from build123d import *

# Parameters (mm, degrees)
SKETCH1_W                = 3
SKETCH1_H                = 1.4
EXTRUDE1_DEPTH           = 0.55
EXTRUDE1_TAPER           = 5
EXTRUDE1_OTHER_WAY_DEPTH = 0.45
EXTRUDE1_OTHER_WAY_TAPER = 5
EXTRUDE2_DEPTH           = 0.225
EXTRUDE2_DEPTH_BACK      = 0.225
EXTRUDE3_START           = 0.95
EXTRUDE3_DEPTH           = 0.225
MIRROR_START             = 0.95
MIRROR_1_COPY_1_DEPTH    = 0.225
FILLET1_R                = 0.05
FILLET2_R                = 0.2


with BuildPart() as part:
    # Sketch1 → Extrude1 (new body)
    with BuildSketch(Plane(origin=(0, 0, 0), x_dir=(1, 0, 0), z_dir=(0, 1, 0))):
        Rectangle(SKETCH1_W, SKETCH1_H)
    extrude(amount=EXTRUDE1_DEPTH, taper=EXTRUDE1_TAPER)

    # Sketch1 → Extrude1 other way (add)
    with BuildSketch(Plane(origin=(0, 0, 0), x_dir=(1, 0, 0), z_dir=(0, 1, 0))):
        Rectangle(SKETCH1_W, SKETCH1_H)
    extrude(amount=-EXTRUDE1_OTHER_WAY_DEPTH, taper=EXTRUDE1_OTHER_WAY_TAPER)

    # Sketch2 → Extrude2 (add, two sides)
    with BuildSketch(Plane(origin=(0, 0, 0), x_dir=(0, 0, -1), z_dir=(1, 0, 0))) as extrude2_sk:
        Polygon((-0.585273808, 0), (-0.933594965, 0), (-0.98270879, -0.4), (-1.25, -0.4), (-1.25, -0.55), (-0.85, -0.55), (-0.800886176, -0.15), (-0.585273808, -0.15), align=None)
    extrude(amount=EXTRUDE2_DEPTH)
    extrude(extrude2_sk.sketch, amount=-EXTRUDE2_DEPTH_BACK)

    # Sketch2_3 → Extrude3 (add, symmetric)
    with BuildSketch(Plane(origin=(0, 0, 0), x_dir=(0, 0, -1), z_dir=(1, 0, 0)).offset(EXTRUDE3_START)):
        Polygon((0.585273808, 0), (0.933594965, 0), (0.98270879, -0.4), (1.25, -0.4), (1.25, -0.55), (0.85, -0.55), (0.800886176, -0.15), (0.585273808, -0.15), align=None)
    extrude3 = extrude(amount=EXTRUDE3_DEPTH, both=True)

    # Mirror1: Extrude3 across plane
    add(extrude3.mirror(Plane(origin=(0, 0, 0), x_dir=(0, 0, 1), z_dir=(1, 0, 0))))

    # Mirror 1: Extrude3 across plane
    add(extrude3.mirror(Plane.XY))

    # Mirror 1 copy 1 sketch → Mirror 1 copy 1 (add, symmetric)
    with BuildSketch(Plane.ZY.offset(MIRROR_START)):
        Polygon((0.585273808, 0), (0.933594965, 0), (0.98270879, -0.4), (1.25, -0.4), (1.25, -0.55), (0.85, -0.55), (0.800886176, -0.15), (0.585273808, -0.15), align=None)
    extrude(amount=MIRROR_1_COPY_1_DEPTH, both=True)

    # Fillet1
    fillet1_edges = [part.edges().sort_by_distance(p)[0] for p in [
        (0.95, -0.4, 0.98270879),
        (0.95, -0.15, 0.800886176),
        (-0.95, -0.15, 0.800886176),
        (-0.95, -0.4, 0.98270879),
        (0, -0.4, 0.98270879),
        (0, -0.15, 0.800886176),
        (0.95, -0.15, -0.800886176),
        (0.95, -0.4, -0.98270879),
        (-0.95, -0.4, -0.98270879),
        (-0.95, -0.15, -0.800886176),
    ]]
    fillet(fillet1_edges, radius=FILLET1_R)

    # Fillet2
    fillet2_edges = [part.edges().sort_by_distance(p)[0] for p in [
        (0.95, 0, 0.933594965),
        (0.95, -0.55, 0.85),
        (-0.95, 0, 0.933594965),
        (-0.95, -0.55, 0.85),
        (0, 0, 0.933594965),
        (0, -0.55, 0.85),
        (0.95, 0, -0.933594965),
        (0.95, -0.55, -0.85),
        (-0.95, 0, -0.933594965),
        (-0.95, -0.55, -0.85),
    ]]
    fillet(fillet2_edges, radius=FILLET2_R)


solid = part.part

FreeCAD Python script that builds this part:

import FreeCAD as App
import Part
import Sketcher
Q = App.Units.Quantity


def edges_at(feature, points):
    """Names of the edges that pass closest to the given points."""
    edges = feature.Shape.Edges
    near = lambda p: min(range(len(edges)), key=lambda i: edges[i].distToShape(Part.Vertex(*p))[0])
    return sorted({f"Edge{near(p) + 1}" for p in points})

doc = App.newDocument("Part")
body = doc.addObject("PartDesign::Body", "Body")

sketch1 = doc.addObject("Sketcher::SketchObject", "Sketch")
body.addObject(sketch1)
sketch1.AttachmentSupport = (doc.XZ_Plane, [""])
sketch1.MapMode = "FlatFace"
sketch1.addGeometry([
    Part.LineSegment(App.Vector(-1.5, -0.7, 0), App.Vector(-1.5, 0.7, 0)),
    Part.LineSegment(App.Vector(-1.5, 0.7, 0), App.Vector(1.5, 0.7, 0)),
    Part.LineSegment(App.Vector(1.5, 0.7, 0), App.Vector(1.5, -0.7, 0)),
    Part.LineSegment(App.Vector(1.5, -0.7, 0), App.Vector(-1.5, -0.7, 0)),
], False)
sketch1.addConstraint([
    Sketcher.Constraint("Coincident", 0, 2, 1, 1),
    Sketcher.Constraint("Coincident", 1, 2, 2, 1),
    Sketcher.Constraint("Coincident", 2, 2, 3, 1),
    Sketcher.Constraint("Coincident", 3, 2, 0, 1),
    Sketcher.Constraint("Vertical", 0),
    Sketcher.Constraint("Horizontal", 1),
    Sketcher.Constraint("Vertical", 2),
    Sketcher.Constraint("Horizontal", 3),
    Sketcher.Constraint("Symmetric", 0, 2, 2, 2, -1, 1),
    Sketcher.Constraint("DistanceX", 1, 1, 1, 2, Q("3 mm")),
    Sketcher.Constraint("DistanceY", 0, 1, 0, 2, Q("1.4 mm")),
])
pad1 = doc.addObject("PartDesign::Pad", "Pad")
body.addObject(pad1)
pad1.Profile = sketch1
pad1.Length = 0.55
pad1.Reversed = True
pad1.TaperAngle = -5

sketch2 = doc.addObject("Sketcher::SketchObject", "Sketch001")
body.addObject(sketch2)
sketch2.AttachmentSupport = (doc.XZ_Plane, [""])
sketch2.MapMode = "FlatFace"
sketch2.addGeometry([
    Part.LineSegment(App.Vector(-1.5, -0.7, 0), App.Vector(-1.5, 0.7, 0)),
    Part.LineSegment(App.Vector(-1.5, 0.7, 0), App.Vector(1.5, 0.7, 0)),
    Part.LineSegment(App.Vector(1.5, 0.7, 0), App.Vector(1.5, -0.7, 0)),
    Part.LineSegment(App.Vector(1.5, -0.7, 0), App.Vector(-1.5, -0.7, 0)),
], False)
sketch2.addConstraint([
    Sketcher.Constraint("Coincident", 0, 2, 1, 1),
    Sketcher.Constraint("Coincident", 1, 2, 2, 1),
    Sketcher.Constraint("Coincident", 2, 2, 3, 1),
    Sketcher.Constraint("Coincident", 3, 2, 0, 1),
    Sketcher.Constraint("Vertical", 0),
    Sketcher.Constraint("Horizontal", 1),
    Sketcher.Constraint("Vertical", 2),
    Sketcher.Constraint("Horizontal", 3),
    Sketcher.Constraint("Symmetric", 0, 2, 2, 2, -1, 1),
    Sketcher.Constraint("DistanceX", 1, 1, 1, 2, Q("3 mm")),
    Sketcher.Constraint("DistanceY", 0, 1, 0, 2, Q("1.4 mm")),
])
pad2 = doc.addObject("PartDesign::Pad", "Pad001")
body.addObject(pad2)
pad2.Profile = sketch2
pad2.Length = 0.45
pad2.TaperAngle = -5

sketch3 = doc.addObject("Sketcher::SketchObject", "Sketch002")
body.addObject(sketch3)
sketch3.AttachmentSupport = (doc.YZ_Plane, [""])
sketch3.MapMode = "FlatFace"
sketch3.addGeometry([
    Part.LineSegment(App.Vector(0, 0.59, 0), App.Vector(0, 0.93, 0)),
    Part.LineSegment(App.Vector(0, 0.93, 0), App.Vector(-0.4, 0.98, 0)),
    Part.LineSegment(App.Vector(-0.4, 0.98, 0), App.Vector(-0.4, 1.25, 0)),
    Part.LineSegment(App.Vector(-0.4, 1.25, 0), App.Vector(-0.55, 1.25, 0)),
    Part.LineSegment(App.Vector(-0.55, 1.25, 0), App.Vector(-0.55, 0.85, 0)),
    Part.LineSegment(App.Vector(-0.55, 0.85, 0), App.Vector(-0.15, 0.8, 0)),
    Part.LineSegment(App.Vector(-0.15, 0.8, 0), App.Vector(-0.15, 0.59, 0)),
    Part.LineSegment(App.Vector(-0.15, 0.59, 0), App.Vector(0, 0.59, 0)),
], False)
sketch3.addConstraint([
    Sketcher.Constraint("Coincident", 0, 2, 1, 1),
    Sketcher.Constraint("Coincident", 1, 2, 2, 1),
    Sketcher.Constraint("Coincident", 2, 2, 3, 1),
    Sketcher.Constraint("Coincident", 3, 2, 4, 1),
    Sketcher.Constraint("Coincident", 4, 2, 5, 1),
    Sketcher.Constraint("Coincident", 5, 2, 6, 1),
    Sketcher.Constraint("Coincident", 6, 2, 7, 1),
    Sketcher.Constraint("Coincident", 7, 2, 0, 1),
    Sketcher.Constraint("Vertical", 0),
    Sketcher.Constraint("Vertical", 2),
    Sketcher.Constraint("Horizontal", 3),
    Sketcher.Constraint("Vertical", 4),
    Sketcher.Constraint("Vertical", 6),
    Sketcher.Constraint("Horizontal", 7),
    Sketcher.Constraint("PointOnObject", 0, 2, -2),
    Sketcher.Constraint("Parallel", 1, 5),
    Sketcher.Constraint("Equal", 3, 7),
    Sketcher.Constraint("Angle", 1, Q("173 deg")),
    Sketcher.Constraint("DistanceY", 4, 2, 4, 1, Q("0.4 mm")),
    Sketcher.Constraint("DistanceX", 3, 2, 3, 1, Q("0.15 mm")),
    Sketcher.Constraint("DistanceX", 1, 2, -1, 1, Q("0.4 mm")),
    Sketcher.Constraint("DistanceY", -1, 1, 2, 2, Q("1.25 mm")),
    Sketcher.Constraint("DistanceY", 0, 1, 0, 2, Q("0.348321 mm")),
    Sketcher.Constraint("DistanceY", 2, 1, 2, 2, Q("0.267291 mm")),
])
pad3 = doc.addObject("PartDesign::Pad", "Pad002")
body.addObject(pad3)
pad3.Profile = sketch3
pad3.Type = "TwoLengths"
pad3.Length = 0.225
pad3.Length2 = 0.225

sketch4 = doc.addObject("Sketcher::SketchObject", "Sketch003")
body.addObject(sketch4)
sketch4.AttachmentSupport = (doc.YZ_Plane, [""])
sketch4.MapMode = "FlatFace"
sketch4.AttachmentOffset = App.Placement(App.Vector(0, 0, 0.95), App.Rotation())
sketch4.addGeometry([
    Part.LineSegment(App.Vector(0, -0.93, 0), App.Vector(0, -0.59, 0)),
    Part.LineSegment(App.Vector(0, -0.59, 0), App.Vector(-0.15, -0.59, 0)),
    Part.LineSegment(App.Vector(-0.15, -0.59, 0), App.Vector(-0.15, -0.8, 0)),
    Part.LineSegment(App.Vector(-0.15, -0.8, 0), App.Vector(-0.55, -0.85, 0)),
    Part.LineSegment(App.Vector(-0.55, -0.85, 0), App.Vector(-0.55, -1.25, 0)),
    Part.LineSegment(App.Vector(-0.55, -1.25, 0), App.Vector(-0.4, -1.25, 0)),
    Part.LineSegment(App.Vector(-0.4, -1.25, 0), App.Vector(-0.4, -0.98, 0)),
    Part.LineSegment(App.Vector(-0.4, -0.98, 0), App.Vector(0, -0.93, 0)),
], False)
sketch4.addConstraint([
    Sketcher.Constraint("Coincident", 0, 2, 1, 1),
    Sketcher.Constraint("Coincident", 1, 2, 2, 1),
    Sketcher.Constraint("Coincident", 2, 2, 3, 1),
    Sketcher.Constraint("Coincident", 3, 2, 4, 1),
    Sketcher.Constraint("Coincident", 4, 2, 5, 1),
    Sketcher.Constraint("Coincident", 5, 2, 6, 1),
    Sketcher.Constraint("Coincident", 6, 2, 7, 1),
    Sketcher.Constraint("Coincident", 7, 2, 0, 1),
    Sketcher.Constraint("Vertical", 0),
    Sketcher.Constraint("Horizontal", 1),
    Sketcher.Constraint("Vertical", 2),
    Sketcher.Constraint("Vertical", 4),
    Sketcher.Constraint("Horizontal", 5),
    Sketcher.Constraint("Vertical", 6),
    Sketcher.Constraint("PointOnObject", 0, 2, -2),
    Sketcher.Constraint("Parallel", 3, 7),
    Sketcher.Constraint("Equal", 1, 5),
    Sketcher.Constraint("Angle", 3, Q("-173 deg")),
    Sketcher.Constraint("DistanceY", 4, 2, 4, 1, Q("0.4 mm")),
    Sketcher.Constraint("DistanceX", 1, 2, 1, 1, Q("0.15 mm")),
    Sketcher.Constraint("DistanceX", 5, 2, -1, 1, Q("0.4 mm")),
    Sketcher.Constraint("DistanceY", 3, 2, -1, 1, Q("0.85 mm")),
    Sketcher.Constraint("DistanceY", 0, 1, 0, 2, Q("0.348321 mm")),
    Sketcher.Constraint("DistanceY", 6, 1, 6, 2, Q("0.267291 mm")),
])
pad4 = doc.addObject("PartDesign::Pad", "Pad003")
body.addObject(pad4)
pad4.Profile = sketch4
pad4.Length = 0.45
pad4.Midplane = True
doc.recompute()

mirrored = doc.addObject("PartDesign::Mirrored", "Mirrored")
body.addObject(mirrored)
mirrored.Originals = [pad4]
mirrored.MirrorPlane = (doc.YZ_Plane, [""])
body.Tip = mirrored
doc.recompute()

mirrored2 = doc.addObject("PartDesign::Mirrored", "Mirrored001")
body.addObject(mirrored2)
mirrored2.Originals = [pad4]
mirrored2.MirrorPlane = (doc.XY_Plane, [""])
body.Tip = mirrored2

sketch5 = doc.addObject("Sketcher::SketchObject", "Sketch004")
body.addObject(sketch5)
sketch5.AttachmentSupport = (doc.YZ_Plane, [""])
sketch5.MapMode = "FlatFace"
sketch5.AttachmentOffset = App.Placement(App.Vector(0, 0, -0.95), App.Rotation())
sketch5.addGeometry([
    Part.LineSegment(App.Vector(0, 0.93, 0), App.Vector(0, 0.59, 0)),
    Part.LineSegment(App.Vector(0, 0.59, 0), App.Vector(-0.15, 0.59, 0)),
    Part.LineSegment(App.Vector(-0.15, 0.59, 0), App.Vector(-0.15, 0.8, 0)),
    Part.LineSegment(App.Vector(-0.15, 0.8, 0), App.Vector(-0.55, 0.85, 0)),
    Part.LineSegment(App.Vector(-0.55, 0.85, 0), App.Vector(-0.55, 1.25, 0)),
    Part.LineSegment(App.Vector(-0.55, 1.25, 0), App.Vector(-0.4, 1.25, 0)),
    Part.LineSegment(App.Vector(-0.4, 1.25, 0), App.Vector(-0.4, 0.98, 0)),
    Part.LineSegment(App.Vector(-0.4, 0.98, 0), App.Vector(0, 0.93, 0)),
], False)
sketch5.addConstraint([
    Sketcher.Constraint("Coincident", 0, 2, 1, 1),
    Sketcher.Constraint("Coincident", 1, 2, 2, 1),
    Sketcher.Constraint("Coincident", 2, 2, 3, 1),
    Sketcher.Constraint("Coincident", 3, 2, 4, 1),
    Sketcher.Constraint("Coincident", 4, 2, 5, 1),
    Sketcher.Constraint("Coincident", 5, 2, 6, 1),
    Sketcher.Constraint("Coincident", 6, 2, 7, 1),
    Sketcher.Constraint("Coincident", 7, 2, 0, 1),
    Sketcher.Constraint("Vertical", 0),
    Sketcher.Constraint("Horizontal", 1),
    Sketcher.Constraint("Vertical", 2),
    Sketcher.Constraint("Vertical", 4),
    Sketcher.Constraint("Horizontal", 5),
    Sketcher.Constraint("Vertical", 6),
    Sketcher.Constraint("PointOnObject", 0, 2, -2),
    Sketcher.Constraint("Parallel", 3, 7),
    Sketcher.Constraint("Equal", 1, 5),
    Sketcher.Constraint("Angle", 3, Q("173 deg")),
    Sketcher.Constraint("DistanceY", 4, 1, 4, 2, Q("0.4 mm")),
    Sketcher.Constraint("DistanceX", 1, 2, 1, 1, Q("0.15 mm")),
    Sketcher.Constraint("DistanceX", 5, 2, -1, 1, Q("0.4 mm")),
    Sketcher.Constraint("DistanceY", -1, 1, 3, 2, Q("0.85 mm")),
    Sketcher.Constraint("DistanceY", 0, 2, 0, 1, Q("0.348321 mm")),
    Sketcher.Constraint("DistanceY", 6, 2, 6, 1, Q("0.267291 mm")),
])
pad5 = doc.addObject("PartDesign::Pad", "Pad004")
body.addObject(pad5)
pad5.Profile = sketch5
pad5.Length = 0.45
pad5.Midplane = True
doc.recompute()

fillet = doc.addObject("PartDesign::Fillet", "Fillet")
body.addObject(fillet)
fillet.Base = (pad5, edges_at(pad5, [
    (0.95, -0.4, 0.983),
    (0.95, -0.15, 0.801),
    (-0.95, -0.15, 0.801),
    (-0.95, -0.4, 0.983),
    (0, -0.4, 0.983),
    (0, -0.15, 0.801),
    (0.95, -0.15, -0.801),
    (0.95, -0.4, -0.983),
    (-0.95, -0.4, -0.983),
    (-0.95, -0.15, -0.801),
]))
fillet.Radius = 0.05
doc.recompute()

fillet2 = doc.addObject("PartDesign::Fillet", "Fillet001")
body.addObject(fillet2)
fillet2.Base = (fillet, edges_at(fillet, [
    (0.95, 0, 0.934),
    (0.95, -0.55, 0.85),
    (-0.95, 0, 0.934),
    (-0.95, -0.55, 0.85),
    (0, 0, 0.934),
    (0, -0.55, 0.85),
    (0.95, 0, -0.934),
    (0.95, -0.55, -0.85),
    (-0.95, 0, -0.934),
    (-0.95, -0.55, -0.85),
]))
fillet2.Radius = 0.2

doc.recompute()
